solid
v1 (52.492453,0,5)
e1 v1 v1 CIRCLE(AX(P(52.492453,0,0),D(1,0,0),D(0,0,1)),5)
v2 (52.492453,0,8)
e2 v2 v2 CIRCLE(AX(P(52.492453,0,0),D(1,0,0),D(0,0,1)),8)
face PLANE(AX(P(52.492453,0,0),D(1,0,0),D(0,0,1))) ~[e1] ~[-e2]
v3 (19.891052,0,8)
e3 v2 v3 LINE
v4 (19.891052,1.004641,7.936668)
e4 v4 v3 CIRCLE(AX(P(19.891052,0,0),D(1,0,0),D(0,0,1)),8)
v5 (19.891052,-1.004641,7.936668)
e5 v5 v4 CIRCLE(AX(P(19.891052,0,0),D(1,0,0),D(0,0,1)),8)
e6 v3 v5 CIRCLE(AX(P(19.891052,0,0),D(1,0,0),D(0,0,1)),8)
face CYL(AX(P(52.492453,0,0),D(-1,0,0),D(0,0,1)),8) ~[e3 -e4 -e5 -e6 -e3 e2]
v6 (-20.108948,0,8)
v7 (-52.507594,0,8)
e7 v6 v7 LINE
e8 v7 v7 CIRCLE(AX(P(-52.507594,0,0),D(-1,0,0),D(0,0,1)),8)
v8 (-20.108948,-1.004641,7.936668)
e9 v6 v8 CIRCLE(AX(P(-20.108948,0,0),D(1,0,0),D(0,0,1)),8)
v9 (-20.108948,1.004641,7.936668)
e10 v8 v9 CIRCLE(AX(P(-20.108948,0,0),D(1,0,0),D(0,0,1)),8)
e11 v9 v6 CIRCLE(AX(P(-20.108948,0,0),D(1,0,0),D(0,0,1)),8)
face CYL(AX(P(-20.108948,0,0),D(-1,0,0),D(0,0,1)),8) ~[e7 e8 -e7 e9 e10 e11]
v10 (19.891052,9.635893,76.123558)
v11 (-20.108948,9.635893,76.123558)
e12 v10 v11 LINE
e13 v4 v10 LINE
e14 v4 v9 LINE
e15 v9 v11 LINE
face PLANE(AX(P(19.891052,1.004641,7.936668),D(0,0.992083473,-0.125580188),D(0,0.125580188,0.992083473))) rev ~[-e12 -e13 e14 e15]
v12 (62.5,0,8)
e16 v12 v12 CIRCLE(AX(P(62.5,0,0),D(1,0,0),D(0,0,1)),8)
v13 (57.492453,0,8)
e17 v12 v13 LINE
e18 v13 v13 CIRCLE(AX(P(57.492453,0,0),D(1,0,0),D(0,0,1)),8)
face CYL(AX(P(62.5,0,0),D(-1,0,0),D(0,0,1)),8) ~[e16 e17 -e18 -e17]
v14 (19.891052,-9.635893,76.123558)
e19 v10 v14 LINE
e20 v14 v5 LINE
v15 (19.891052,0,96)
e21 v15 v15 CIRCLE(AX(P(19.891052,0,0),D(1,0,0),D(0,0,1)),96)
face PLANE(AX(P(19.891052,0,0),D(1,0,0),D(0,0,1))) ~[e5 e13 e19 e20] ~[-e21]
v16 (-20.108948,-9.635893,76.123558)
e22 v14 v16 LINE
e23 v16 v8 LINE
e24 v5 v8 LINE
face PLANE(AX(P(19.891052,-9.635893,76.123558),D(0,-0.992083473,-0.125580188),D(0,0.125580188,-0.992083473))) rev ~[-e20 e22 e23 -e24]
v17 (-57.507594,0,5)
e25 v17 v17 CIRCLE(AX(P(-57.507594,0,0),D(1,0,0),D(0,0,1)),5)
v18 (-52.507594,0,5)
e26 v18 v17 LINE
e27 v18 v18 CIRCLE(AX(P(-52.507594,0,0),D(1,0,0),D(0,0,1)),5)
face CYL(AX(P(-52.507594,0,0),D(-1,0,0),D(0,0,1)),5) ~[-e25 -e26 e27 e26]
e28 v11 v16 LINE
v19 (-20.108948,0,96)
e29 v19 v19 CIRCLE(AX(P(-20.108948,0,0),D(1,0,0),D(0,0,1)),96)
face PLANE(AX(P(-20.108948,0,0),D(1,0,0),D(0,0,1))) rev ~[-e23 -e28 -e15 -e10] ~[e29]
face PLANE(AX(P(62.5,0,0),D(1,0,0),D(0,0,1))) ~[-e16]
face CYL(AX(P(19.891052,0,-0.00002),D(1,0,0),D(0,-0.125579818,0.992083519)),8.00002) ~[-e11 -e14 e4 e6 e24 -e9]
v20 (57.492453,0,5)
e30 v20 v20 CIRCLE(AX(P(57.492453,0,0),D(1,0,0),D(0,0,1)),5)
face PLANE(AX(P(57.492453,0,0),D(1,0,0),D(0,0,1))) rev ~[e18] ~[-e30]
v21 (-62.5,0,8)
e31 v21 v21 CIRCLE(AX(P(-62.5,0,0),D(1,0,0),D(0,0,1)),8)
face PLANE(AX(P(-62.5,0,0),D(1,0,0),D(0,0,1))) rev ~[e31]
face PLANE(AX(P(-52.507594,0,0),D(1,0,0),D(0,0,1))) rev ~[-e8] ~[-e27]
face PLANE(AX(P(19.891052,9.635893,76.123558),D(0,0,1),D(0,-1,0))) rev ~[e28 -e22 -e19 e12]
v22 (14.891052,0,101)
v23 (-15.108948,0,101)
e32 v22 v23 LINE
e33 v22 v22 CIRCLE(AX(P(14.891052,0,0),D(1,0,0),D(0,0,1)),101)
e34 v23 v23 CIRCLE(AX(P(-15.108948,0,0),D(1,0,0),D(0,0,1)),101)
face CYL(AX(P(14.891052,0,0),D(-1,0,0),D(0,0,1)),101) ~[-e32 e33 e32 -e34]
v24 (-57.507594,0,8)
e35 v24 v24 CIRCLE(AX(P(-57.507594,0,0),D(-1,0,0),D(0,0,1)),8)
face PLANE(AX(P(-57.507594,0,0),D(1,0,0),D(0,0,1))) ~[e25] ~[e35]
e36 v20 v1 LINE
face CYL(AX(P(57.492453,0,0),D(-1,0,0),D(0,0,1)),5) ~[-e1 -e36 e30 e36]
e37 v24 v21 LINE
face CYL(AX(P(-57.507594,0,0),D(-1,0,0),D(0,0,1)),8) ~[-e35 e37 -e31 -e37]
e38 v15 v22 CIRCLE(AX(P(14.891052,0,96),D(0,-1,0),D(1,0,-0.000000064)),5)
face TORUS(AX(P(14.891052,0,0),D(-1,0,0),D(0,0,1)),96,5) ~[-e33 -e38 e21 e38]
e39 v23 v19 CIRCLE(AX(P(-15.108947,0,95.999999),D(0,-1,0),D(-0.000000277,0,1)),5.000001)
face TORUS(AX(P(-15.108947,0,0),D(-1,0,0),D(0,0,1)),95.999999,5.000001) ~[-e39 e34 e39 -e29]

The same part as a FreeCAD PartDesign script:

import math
import FreeCAD as App
import Part
import Sketcher

doc = App.newDocument("Part")
params = doc.addObject("Spreadsheet::Sheet", "Params")
for row, (alias, value) in enumerate([
    ("sketch1_radius", "5 mm"),
    ("sketch1_width", "125 mm"),
    ("sketch1_width2", "5 mm"),
    ("sketch1_width3", "30 mm"),
    ("sketch1_height", "8 mm"),
    ("revolution_angle", "360 deg"),
], start=1):
    params.set(f"A{row}", alias)
    params.set(f"B{row}", "=" + value)
    params.setAlias(f"B{row}", alias)

body = doc.addObject("PartDesign::Body", "Body")

sketch1 = body.newObject("Sketcher::SketchObject", "Sketch")
sketch1.AttachmentSupport = (doc.getObject("XZ_Plane"), [""])
sketch1.MapMode = "FlatFace"
sketch1.addGeometry(Part.LineSegment(App.Vector(-57.507594, 8, 0), App.Vector(-62.5, 8, 0)), False)
sketch1.addGeometry(Part.LineSegment(App.Vector(-62.5, 8, 0), App.Vector(-62.5, 0, 0)), False)
sketch1.addGeometry(Part.LineSegment(App.Vector(-62.5, 0, 0), App.Vector(62.5, 0, 0)), False)
sketch1.addGeometry(Part.LineSegment(App.Vector(62.5, 0, 0), App.Vector(62.5, 8, 0)), False)
sketch1.addGeometry(Part.LineSegment(App.Vector(62.5, 8, 0), App.Vector(57.492453, 8, 0)), False)
sketch1.addGeometry(Part.LineSegment(App.Vector(57.492453, 8, 0), App.Vector(57.492453, 5, 0)), False)
sketch1.addGeometry(Part.LineSegment(App.Vector(57.492453, 5, 0), App.Vector(52.492453, 5, 0)), False)
sketch1.addGeometry(Part.LineSegment(App.Vector(52.492453, 5, 0), App.Vector(52.492453, 8, 0)), False)
sketch1.addGeometry(Part.LineSegment(App.Vector(52.492453, 8, 0), App.Vector(19.891052, 8, 0)), False)
sketch1.addGeometry(Part.LineSegment(App.Vector(19.891052, 8, 0), App.Vector(19.891052, 96, 0)), False)
sketch1.addGeometry(Part.ArcOfCircle(Part.Circle(App.Vector(14.891052, 96, 0), App.Vector(0, 0, 1), 5), math.radians(-0.000004), math.radians(90.000004)), False)
sketch1.addGeometry(Part.LineSegment(App.Vector(14.891052, 101, 0), App.Vector(-15.108948, 101, 0)), False)
sketch1.addGeometry(Part.ArcOfCircle(Part.Circle(App.Vector(-15.108947, 95.999999, 0), App.Vector(0, 0, 1), 5.000001), math.radians(90.000016), math.radians(179.999984)), False)
sketch1.addGeometry(Part.LineSegment(App.Vector(-20.108948, 96, 0), App.Vector(-20.108948, 8, 0)), False)
sketch1.addGeometry(Part.LineSegment(App.Vector(-20.108948, 8, 0), App.Vector(-52.507594, 8, 0)), False)
sketch1.addGeometry(Part.LineSegment(App.Vector(-52.507594, 8, 0), App.Vector(-52.507594, 5, 0)), False)
sketch1.addGeometry(Part.LineSegment(App.Vector(-52.507594, 5, 0), App.Vector(-57.507594, 5, 0)), False)
sketch1.addGeometry(Part.LineSegment(App.Vector(-57.507594, 5, 0), App.Vector(-57.507594, 8, 0)), False)
sketch1.addConstraint(Sketcher.Constraint("Coincident", 0, 2, 1, 1))
sketch1.addConstraint(Sketcher.Constraint("Coincident", 1, 2, 2, 1))
sketch1.addConstraint(Sketcher.Constraint("Coincident", 2, 2, 3, 1))
sketch1.addConstraint(Sketcher.Constraint("Coincident", 3, 2, 4, 1))
sketch1.addConstraint(Sketcher.Constraint("Coincident", 4, 2, 5, 1))
sketch1.addConstraint(Sketcher.Constraint("Coincident", 5, 2, 6, 1))
sketch1.addConstraint(Sketcher.Constraint("Coincident", 6, 2, 7, 1))
sketch1.addConstraint(Sketcher.Constraint("Coincident", 7, 2, 8, 1))
sketch1.addConstraint(Sketcher.Constraint("Coincident", 8, 2, 9, 1))
sketch1.addConstraint(Sketcher.Constraint("Tangent", 9, 2, 10, 1))
sketch1.addConstraint(Sketcher.Constraint("Tangent", 10, 2, 11, 1))
sketch1.addConstraint(Sketcher.Constraint("Tangent", 11, 2, 12, 1))
sketch1.addConstraint(Sketcher.Constraint("Tangent", 12, 2, 13, 1))
sketch1.addConstraint(Sketcher.Constraint("Coincident", 13, 2, 14, 1))
sketch1.addConstraint(Sketcher.Constraint("Coincident", 14, 2, 15, 1))
sketch1.addConstraint(Sketcher.Constraint("Coincident", 15, 2, 16, 1))
sketch1.addConstraint(Sketcher.Constraint("Coincident", 16, 2, 17, 1))
sketch1.addConstraint(Sketcher.Constraint("Coincident", 17, 2, 0, 1))
sketch1.addConstraint(Sketcher.Constraint("Horizontal", 0))
sketch1.addConstraint(Sketcher.Constraint("Vertical", 1))
sketch1.addConstraint(Sketcher.Constraint("Horizontal", 2))
sketch1.addConstraint(Sketcher.Constraint("Vertical", 3))
sketch1.addConstraint(Sketcher.Constraint("Horizontal", 4))
sketch1.addConstraint(Sketcher.Constraint("Vertical", 5))
sketch1.addConstraint(Sketcher.Constraint("Horizontal", 6))
sketch1.addConstraint(Sketcher.Constraint("Vertical", 7))
sketch1.addConstraint(Sketcher.Constraint("Horizontal", 8))
sketch1.addConstraint(Sketcher.Constraint("Vertical", 9))
sketch1.addConstraint(Sketcher.Constraint("Horizontal", 11))
sketch1.addConstraint(Sketcher.Constraint("Vertical", 13))
sketch1.addConstraint(Sketcher.Constraint("Horizontal", 14))
sketch1.addConstraint(Sketcher.Constraint("Vertical", 15))
sketch1.addConstraint(Sketcher.Constraint("Horizontal", 16))
sketch1.addConstraint(Sketcher.Constraint("Vertical", 17))
sketch1.addConstraint(Sketcher.Constraint("Equal", 10, 12))
sketch1.addConstraint(Sketcher.Constraint("Symmetric", 1, 2, 2, 2, -1, 1))
sketch1.addConstraint(Sketcher.Constraint("Horizontal", 0, 2, 3, 2))
sketch1.addConstraint(Sketcher.Constraint("Horizontal", 4, 2, 7, 2))
sketch1.addConstraint(Sketcher.Constraint("Horizontal", 8, 2, 13, 2))
sketch1.addConstraint(Sketcher.Constraint("Horizontal", 6, 2, 15, 2))
sketch1.addConstraint(Sketcher.Constraint("Equal", 6, 16))
sketch1.addConstraint(Sketcher.Constraint("Radius", 10, 5.0))
sketch1.addConstraint(Sketcher.Constraint("DistanceX", 2, 1, 2, 2, 125.0))
sketch1.addConstraint(Sketcher.Constraint("DistanceX", 6, 2, 6, 1, 5.0))
sketch1.addConstraint(Sketcher.Constraint("DistanceX", 11, 2, 11, 1, 30.0))
sketch1.addConstraint(Sketcher.Constraint("DistanceY", 1, 2, 1, 1, 8.0))
sketch1.addConstraint(Sketcher.Constraint("DistanceY", 5, 2, 5, 1, 3.0))
sketch1.addConstraint(Sketcher.Constraint("DistanceY", 9, 1, 9, 2, 88.0))
sketch1.addConstraint(Sketcher.Constraint("DistanceX", 8, 2, 8, 1, 32.601401))
sketch1.addConstraint(Sketcher.Constraint("DistanceX", 0, 2, 0, 1, 4.992406))
sketch1.addConstraint(Sketcher.Constraint("DistanceX", 4, 2, 4, 1, 5.007547))
sketch1.setExpression("Constraints[41]", "Params.sketch1_radius")
sketch1.setExpression("Constraints[42]", "Params.sketch1_width")
sketch1.setExpression("Constraints[43]", "Params.sketch1_width2")
sketch1.setExpression("Constraints[44]", "Params.sketch1_width3")
sketch1.setExpression("Constraints[45]", "Params.sketch1_height")
revolution = body.newObject("PartDesign::Revolution", "Revolution")
revolution.Profile = sketch1
revolution.ReferenceAxis = (sketch1, ["H_Axis"])
revolution.setExpression("Angle", "Params.revolution_angle")

sketch2 = body.newObject("Sketcher::SketchObject", "Sketch001")
sketch2.AttachmentSupport = (doc.getObject("YZ_Plane"), [""])
sketch2.MapMode = "FlatFace"
sketch2.AttachmentOffset = App.Placement(App.Vector(0, 0, 19.891052), App.Rotation())
sketch2.addGeometry(Part.LineSegment(App.Vector(-9.635893, 76.123558, 0), App.Vector(-1.004641, 7.936668, 0)), False)
sketch2.addGeometry(Part.ArcOfCircle(Part.Circle(App.Vector(0, -0.00002, 0), App.Vector(0, 0, 1), 8.00002), math.radians(82.785759), math.radians(97.214241)), False)
sketch2.addGeometry(Part.LineSegment(App.Vector(1.004641, 7.936668, 0), App.Vector(9.635893, 76.123558, 0)), False)
sketch2.addGeometry(Part.LineSegment(App.Vector(9.635893, 76.123558, 0), App.Vector(-9.635893, 76.123558, 0)), False)
sketch2.addConstraint(Sketcher.Constraint("Coincident", 0, 2, 1, 2))
sketch2.addConstraint(Sketcher.Constraint("Coincident", 1, 1, 2, 1))
sketch2.addConstraint(Sketcher.Constraint("Coincident", 2, 2, 3, 1))
sketch2.addConstraint(Sketcher.Constraint("Coincident", 3, 2, 0, 1))
sketch2.addConstraint(Sketcher.Constraint("Horizontal", 3))
sketch2.addConstraint(Sketcher.Constraint("Symmetric", 0, 2, 1, 1, -2))
sketch2.addConstraint(Sketcher.Constraint("Equal", 0, 2))
sketch2.addConstraint(Sketcher.Constraint("Radius", 1, 8.00002))
sketch2.addConstraint(Sketcher.Constraint("Distance", 0, 68.731001))
sketch2.addConstraint(Sketcher.Constraint("DistanceX", 3, 2, 3, 1, 19.271786))
sketch2.addConstraint(Sketcher.Constraint("DistanceX", 0, 2, -1, 1, 1.004641))
sketch2.addConstraint(Sketcher.Constraint("DistanceY", -1, 1, 2, 2, 76.123558))
pocket1 = body.newObject("PartDesign::Pocket", "Pocket")
pocket1.Profile = sketch2
pocket1.Type = "ThroughAll"

doc.recompute()
